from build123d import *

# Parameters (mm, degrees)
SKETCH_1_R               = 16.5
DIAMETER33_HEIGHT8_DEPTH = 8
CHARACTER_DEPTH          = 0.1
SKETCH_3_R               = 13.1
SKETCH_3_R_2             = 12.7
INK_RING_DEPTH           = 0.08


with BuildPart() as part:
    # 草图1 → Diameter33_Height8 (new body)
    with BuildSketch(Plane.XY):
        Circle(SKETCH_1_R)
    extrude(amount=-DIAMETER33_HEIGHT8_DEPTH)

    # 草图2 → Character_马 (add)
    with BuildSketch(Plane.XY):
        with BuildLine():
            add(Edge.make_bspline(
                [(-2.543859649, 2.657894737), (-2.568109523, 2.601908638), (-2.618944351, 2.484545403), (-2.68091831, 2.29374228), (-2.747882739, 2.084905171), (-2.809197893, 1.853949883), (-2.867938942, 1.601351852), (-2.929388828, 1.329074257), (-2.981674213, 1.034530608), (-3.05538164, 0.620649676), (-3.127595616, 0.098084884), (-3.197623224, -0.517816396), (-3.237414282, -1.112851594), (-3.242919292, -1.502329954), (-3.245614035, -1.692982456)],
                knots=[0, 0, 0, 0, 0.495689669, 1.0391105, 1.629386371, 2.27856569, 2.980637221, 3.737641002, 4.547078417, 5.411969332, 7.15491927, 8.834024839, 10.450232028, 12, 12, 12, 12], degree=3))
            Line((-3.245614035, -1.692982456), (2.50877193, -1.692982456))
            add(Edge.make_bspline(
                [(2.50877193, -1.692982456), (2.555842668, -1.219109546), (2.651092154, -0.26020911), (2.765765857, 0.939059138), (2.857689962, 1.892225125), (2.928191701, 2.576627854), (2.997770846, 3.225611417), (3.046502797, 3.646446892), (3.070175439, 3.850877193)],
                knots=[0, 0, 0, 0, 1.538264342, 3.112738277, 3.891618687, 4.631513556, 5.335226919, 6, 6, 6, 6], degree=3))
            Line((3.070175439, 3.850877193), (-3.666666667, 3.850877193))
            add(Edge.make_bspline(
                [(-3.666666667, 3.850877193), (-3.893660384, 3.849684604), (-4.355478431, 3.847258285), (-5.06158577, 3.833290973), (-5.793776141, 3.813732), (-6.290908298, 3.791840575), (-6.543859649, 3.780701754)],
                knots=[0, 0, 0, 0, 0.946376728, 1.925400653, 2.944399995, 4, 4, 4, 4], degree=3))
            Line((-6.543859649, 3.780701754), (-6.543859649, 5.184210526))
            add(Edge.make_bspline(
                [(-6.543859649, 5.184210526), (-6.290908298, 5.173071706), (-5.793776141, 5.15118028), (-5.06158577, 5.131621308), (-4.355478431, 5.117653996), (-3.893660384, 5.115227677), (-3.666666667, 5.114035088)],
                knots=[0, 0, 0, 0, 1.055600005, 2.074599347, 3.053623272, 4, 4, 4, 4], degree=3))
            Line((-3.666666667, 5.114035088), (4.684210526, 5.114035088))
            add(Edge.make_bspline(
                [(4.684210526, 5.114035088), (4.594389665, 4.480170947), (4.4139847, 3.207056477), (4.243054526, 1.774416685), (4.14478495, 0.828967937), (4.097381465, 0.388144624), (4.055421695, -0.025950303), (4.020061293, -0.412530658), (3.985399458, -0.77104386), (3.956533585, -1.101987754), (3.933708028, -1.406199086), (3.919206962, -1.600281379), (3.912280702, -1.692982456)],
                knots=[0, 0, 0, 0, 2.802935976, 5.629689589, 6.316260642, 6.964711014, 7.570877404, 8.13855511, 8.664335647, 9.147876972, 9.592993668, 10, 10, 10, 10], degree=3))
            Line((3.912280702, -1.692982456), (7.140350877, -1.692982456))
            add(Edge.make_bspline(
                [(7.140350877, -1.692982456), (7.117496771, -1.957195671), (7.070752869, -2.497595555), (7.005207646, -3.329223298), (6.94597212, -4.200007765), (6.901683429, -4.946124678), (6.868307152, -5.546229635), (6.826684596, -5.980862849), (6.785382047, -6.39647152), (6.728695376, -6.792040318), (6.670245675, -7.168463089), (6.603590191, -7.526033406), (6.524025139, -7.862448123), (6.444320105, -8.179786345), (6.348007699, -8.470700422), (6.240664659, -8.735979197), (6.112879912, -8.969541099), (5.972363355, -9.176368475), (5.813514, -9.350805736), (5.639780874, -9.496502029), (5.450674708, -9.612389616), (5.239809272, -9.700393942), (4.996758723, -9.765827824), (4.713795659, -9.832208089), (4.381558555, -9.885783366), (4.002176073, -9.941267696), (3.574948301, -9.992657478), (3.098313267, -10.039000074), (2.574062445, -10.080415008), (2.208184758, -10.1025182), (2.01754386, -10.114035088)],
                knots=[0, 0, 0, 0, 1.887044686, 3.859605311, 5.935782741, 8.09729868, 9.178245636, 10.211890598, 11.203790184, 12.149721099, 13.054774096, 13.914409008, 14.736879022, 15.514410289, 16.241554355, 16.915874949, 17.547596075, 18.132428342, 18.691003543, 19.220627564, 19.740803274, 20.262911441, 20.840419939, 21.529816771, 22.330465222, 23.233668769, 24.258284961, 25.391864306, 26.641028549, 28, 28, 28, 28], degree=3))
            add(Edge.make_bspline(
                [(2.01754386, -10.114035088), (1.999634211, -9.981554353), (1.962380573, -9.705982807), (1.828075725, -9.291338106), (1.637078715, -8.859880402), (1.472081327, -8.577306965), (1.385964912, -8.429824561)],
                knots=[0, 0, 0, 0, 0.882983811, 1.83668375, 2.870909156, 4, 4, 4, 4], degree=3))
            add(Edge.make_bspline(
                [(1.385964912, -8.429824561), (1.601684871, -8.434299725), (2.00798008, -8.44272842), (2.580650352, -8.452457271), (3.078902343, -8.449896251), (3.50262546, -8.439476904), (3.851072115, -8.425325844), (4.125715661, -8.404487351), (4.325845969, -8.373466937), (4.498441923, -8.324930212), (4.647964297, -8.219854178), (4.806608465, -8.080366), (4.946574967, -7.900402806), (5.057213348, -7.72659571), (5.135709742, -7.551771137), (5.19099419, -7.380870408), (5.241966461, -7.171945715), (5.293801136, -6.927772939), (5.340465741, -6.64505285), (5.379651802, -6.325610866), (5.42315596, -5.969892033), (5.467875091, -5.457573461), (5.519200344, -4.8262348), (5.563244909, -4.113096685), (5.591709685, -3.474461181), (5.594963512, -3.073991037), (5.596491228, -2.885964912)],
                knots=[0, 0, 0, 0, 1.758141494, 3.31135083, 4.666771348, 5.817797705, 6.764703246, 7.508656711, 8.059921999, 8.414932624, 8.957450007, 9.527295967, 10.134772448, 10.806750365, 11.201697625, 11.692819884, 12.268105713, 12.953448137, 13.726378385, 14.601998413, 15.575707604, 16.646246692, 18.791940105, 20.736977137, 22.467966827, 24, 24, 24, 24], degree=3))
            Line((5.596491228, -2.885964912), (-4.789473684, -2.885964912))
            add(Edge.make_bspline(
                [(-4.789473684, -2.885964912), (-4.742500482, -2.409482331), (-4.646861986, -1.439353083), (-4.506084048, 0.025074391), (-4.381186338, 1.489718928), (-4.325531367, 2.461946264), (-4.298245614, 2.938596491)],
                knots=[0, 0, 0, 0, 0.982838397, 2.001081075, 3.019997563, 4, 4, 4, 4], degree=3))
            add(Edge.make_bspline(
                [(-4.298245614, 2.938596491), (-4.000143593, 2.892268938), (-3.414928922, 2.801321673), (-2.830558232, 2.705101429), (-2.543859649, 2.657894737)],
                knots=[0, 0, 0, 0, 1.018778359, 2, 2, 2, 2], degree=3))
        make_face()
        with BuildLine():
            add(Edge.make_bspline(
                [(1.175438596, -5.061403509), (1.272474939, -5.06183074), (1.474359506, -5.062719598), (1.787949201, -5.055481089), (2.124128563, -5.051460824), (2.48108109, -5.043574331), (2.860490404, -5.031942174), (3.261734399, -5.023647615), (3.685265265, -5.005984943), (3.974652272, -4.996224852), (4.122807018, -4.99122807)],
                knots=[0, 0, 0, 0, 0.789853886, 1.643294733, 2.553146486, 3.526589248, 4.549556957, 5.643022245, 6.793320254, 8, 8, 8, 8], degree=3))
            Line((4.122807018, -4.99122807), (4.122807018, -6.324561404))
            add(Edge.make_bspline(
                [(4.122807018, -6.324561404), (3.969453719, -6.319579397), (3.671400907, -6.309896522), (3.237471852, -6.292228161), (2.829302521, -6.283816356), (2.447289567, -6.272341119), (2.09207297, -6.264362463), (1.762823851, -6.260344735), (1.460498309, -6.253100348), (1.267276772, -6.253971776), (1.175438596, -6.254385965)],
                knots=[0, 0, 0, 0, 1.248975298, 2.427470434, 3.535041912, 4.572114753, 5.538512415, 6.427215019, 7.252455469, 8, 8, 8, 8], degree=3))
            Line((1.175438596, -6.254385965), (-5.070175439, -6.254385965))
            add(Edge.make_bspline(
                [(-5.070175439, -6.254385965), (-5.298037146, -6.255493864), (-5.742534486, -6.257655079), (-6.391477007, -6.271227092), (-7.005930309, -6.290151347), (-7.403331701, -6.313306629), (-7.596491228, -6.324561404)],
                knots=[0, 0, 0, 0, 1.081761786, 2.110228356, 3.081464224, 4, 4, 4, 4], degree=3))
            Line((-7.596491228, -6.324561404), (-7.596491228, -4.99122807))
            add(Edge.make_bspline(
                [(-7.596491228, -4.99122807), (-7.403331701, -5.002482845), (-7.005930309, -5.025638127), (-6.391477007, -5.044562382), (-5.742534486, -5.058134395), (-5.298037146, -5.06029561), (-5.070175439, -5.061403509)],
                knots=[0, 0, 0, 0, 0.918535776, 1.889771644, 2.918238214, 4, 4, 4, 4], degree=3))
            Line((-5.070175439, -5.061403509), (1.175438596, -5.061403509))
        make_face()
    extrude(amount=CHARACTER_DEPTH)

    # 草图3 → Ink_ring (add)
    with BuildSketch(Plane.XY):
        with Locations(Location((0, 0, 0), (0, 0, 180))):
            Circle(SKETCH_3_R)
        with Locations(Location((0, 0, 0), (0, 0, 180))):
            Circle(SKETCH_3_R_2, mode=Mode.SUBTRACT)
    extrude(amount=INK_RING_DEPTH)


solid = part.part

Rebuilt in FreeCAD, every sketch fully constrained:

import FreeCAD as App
import Part
import Sketcher

V = App.Vector
Q = App.Units.Quantity

doc = App.newDocument("Part")
params = doc.addObject("Spreadsheet::Sheet", "Params")
for row, (alias, value) in enumerate([
    ("sketch1_diameter", "33 mm"),
    ("pad1_length", "8 mm"),
    ("pad2_length", "0.1 mm"),
    ("sketch3_diameter", "26.2 mm"),
    ("sketch3_diameter2", "25.4 mm"),
    ("pad3_length", "0.08 mm"),
], start=1):
    params.set(f"A{row}", alias)
    params.set(f"B{row}", "=" + value)
    params.setAlias(f"B{row}", alias)

body = doc.addObject("PartDesign::Body", "Body")

# Sketch on XY plane
sketch1 = doc.addObject("Sketcher::SketchObject", "Sketch")
body.addObject(sketch1)
sketch1.AttachmentSupport = (doc.XY_Plane, [""])
sketch1.MapMode = "FlatFace"
sketch1.addGeometry(Part.Circle(V(0, 0, 0), V(0, 0, 1), 16), False)
sketch1.addConstraint(Sketcher.Constraint("Coincident", 0, 3, -1, 1))
sketch1.addConstraint(Sketcher.Constraint("Diameter", 0, Q("33 mm")))
sketch1.setExpression("Constraints[1]", "Params.sketch1_diameter")
pad1 = doc.addObject("PartDesign::Pad", "Pad")
body.addObject(pad1)
pad1.Profile = sketch1
pad1.setExpression("Length", "Params.pad1_length")
pad1.Reversed = True

# Sketch on XY plane
sketch2 = doc.addObject("Sketcher::SketchObject", "Sketch001")
body.addObject(sketch2)
sketch2.AttachmentSupport = (doc.XY_Plane, [""])
sketch2.MapMode = "FlatFace"
sketch2.addGeometry(Part.BSplineCurve([V(-2.54386, 2.657895, 0), V(-2.56811, 2.601909, 0), V(-2.618944, 2.484545, 0), V(-2.680918, 2.293742, 0), V(-2.747883, 2.084905, 0), V(-2.809198, 1.85395, 0), V(-2.867939, 1.601352, 0), V(-2.929389, 1.329074, 0), V(-2.981674, 1.034531, 0), V(-3.055382, 0.62065, 0), V(-3.127596, 0.098085, 0), V(-3.197623, -0.517816, 0), V(-3.237414, -1.112852, 0), V(-3.242919, -1.50233, 0), V(-3.245614, -1.692982, 0)], [4, 1, 1, 1, 1, 1, 1, 1, 1, 1, 1, 1, 4], [0, 0.495689669, 1.0391105, 1.629386371, 2.27856569, 2.980637221, 3.737641002, 4.547078417, 5.411969332, 7.15491927, 8.834024839, 10.450232028, 12], False, 3, [1, 1, 1, 1, 1, 1, 1, 1, 1, 1, 1, 1, 1, 1, 1], False), False)
sketch2.addGeometry(Part.BSplineCurve([V(-4.298246, 2.938596, 0), V(-4.000144, 2.892269, 0), V(-3.414929, 2.801322, 0), V(-2.830558, 2.705101, 0), V(-2.54386, 2.657895, 0)], [4, 1, 4], [0, 1.018778359, 2], False, 3, [1, 1, 1, 1, 1], False), False)
sketch2.addGeometry(Part.BSplineCurve([V(-4.789474, -2.885965, 0), V(-4.7425, -2.409482, 0), V(-4.646862, -1.439353, 0), V(-4.506084, 0.025074, 0), V(-4.381186, 1.489719, 0), V(-4.325531, 2.461946, 0), V(-4.298246, 2.938596, 0)], [4, 1, 1, 1, 4], [0, 0.982838397, 2.001081075, 3.019997563, 4], False, 3, [1, 1, 1, 1, 1, 1, 1], False), False)
sketch2.addGeometry(Part.LineSegment(V(-4.789474, -2.885965, 0), V(5.596491, -2.885965, 0)), False)
sketch2.addGeometry(Part.BSplineCurve([V(1.385965, -8.429825, 0), V(1.601685, -8.4343, 0), V(2.00798, -8.442728, 0), V(2.58065, -8.452457, 0), V(3.078902, -8.449896, 0), V(3.502625, -8.439477, 0), V(3.851072, -8.425326, 0), V(4.125716, -8.404487, 0), V(4.325846, -8.373467, 0), V(4.498442, -8.32493, 0), V(4.647964, -8.219854, 0), V(4.806608, -8.080366, 0), V(4.946575, -7.900403, 0), V(5.057213, -7.726596, 0), V(5.13571, -7.551771, 0), V(5.190994, -7.38087, 0), V(5.241966, -7.171946, 0), V(5.293801, -6.927773, 0), V(5.340466, -6.645053, 0), V(5.379652, -6.325611, 0), V(5.423156, -5.969892, 0), V(5.467875, -5.457573, 0), V(5.5192, -4.826235, 0), V(5.563245, -4.113097, 0), V(5.59171, -3.474461, 0), V(5.594964, -3.073991, 0), V(5.596491, -2.885965, 0)], [4, 1, 1, 1, 1, 1, 1, 1, 1, 1, 1, 1, 1, 1, 1, 1, 1, 1, 1, 1, 1, 1, 1, 1, 4], [0, 1.758141494, 3.31135083, 4.666771348, 5.817797705, 6.764703246, 7.508656711, 8.059921999, 8.414932624, 8.957450007, 9.527295967, 10.134772448, 10.806750365, 11.201697625, 11.692819884, 12.268105713, 12.953448137, 13.726378385, 14.601998413, 15.575707604, 16.646246692, 18.791940105, 20.736977137, 22.467966827, 24], False, 3, [1, 1, 1, 1, 1, 1, 1, 1, 1, 1, 1, 1, 1, 1, 1, 1, 1, 1, 1, 1, 1, 1, 1, 1, 1, 1, 1], False), False)
sketch2.addGeometry(Part.BSplineCurve([V(2.017544, -10.114035, 0), V(1.999634, -9.981554, 0), V(1.962381, -9.705983, 0), V(1.828076, -9.291338, 0), V(1.637079, -8.85988, 0), V(1.472081, -8.577307, 0), V(1.385965, -8.429825, 0)], [4, 1, 1, 1, 4], [0, 0.882983811, 1.83668375, 2.870909156, 4], False, 3, [1, 1, 1, 1, 1, 1, 1], False), False)
sketch2.addGeometry(Part.BSplineCurve([V(7.140351, -1.692982, 0), V(7.117497, -1.957196, 0), V(7.070753, -2.497596, 0), V(7.005208, -3.329223, 0), V(6.945972, -4.200008, 0), V(6.901683, -4.946125, 0), V(6.868307, -5.54623, 0), V(6.826685, -5.980863, 0), V(6.785382, -6.396472, 0), V(6.728695, -6.79204, 0), V(6.670246, -7.168463, 0), V(6.60359, -7.526033, 0), V(6.524025, -7.862448, 0), V(6.44432, -8.179786, 0), V(6.348008, -8.4707, 0), V(6.240665, -8.735979, 0), V(6.11288, -8.969541, 0), V(5.972363, -9.176368, 0), V(5.813514, -9.350806, 0), V(5.639781, -9.496502, 0), V(5.450675, -9.61239, 0), V(5.239809, -9.700394, 0), V(4.996759, -9.765828, 0), V(4.713796, -9.832208, 0), V(4.381559, -9.885783, 0), V(4.002176, -9.941268, 0), V(3.574948, -9.992657, 0), V(3.098313, -10.039, 0), V(2.574062, -10.080415, 0), V(2.208185, -10.102518, 0), V(2.017544, -10.114035, 0)], [4, 1, 1, 1, 1, 1, 1, 1, 1, 1, 1, 1, 1, 1, 1, 1, 1, 1, 1, 1, 1, 1, 1, 1, 1, 1, 1, 1, 4], [0, 1.887044686, 3.859605311, 5.935782741, 8.09729868, 9.178245636, 10.211890598, 11.203790184, 12.149721099, 13.054774096, 13.914409008, 14.736879022, 15.514410289, 16.241554355, 16.915874949, 17.547596075, 18.132428342, 18.691003543, 19.220627564, 19.740803274, 20.262911441, 20.840419939, 21.529816771, 22.330465222, 23.233668769, 24.258284961, 25.391864306, 26.641028549, 28], False, 3, [1, 1, 1, 1, 1, 1, 1, 1, 1, 1, 1, 1, 1, 1, 1, 1, 1, 1, 1, 1, 1, 1, 1, 1, 1, 1, 1, 1, 1, 1, 1], False), False)
sketch2.addGeometry(Part.LineSegment(V(7.140351, -1.692982, 0), V(3.912281, -1.692982, 0)), False)
sketch2.addGeometry(Part.BSplineCurve([V(4.684211, 5.114035, 0), V(4.59439, 4.480171, 0), V(4.413985, 3.207056, 0), V(4.243055, 1.774417, 0), V(4.144785, 0.828968, 0), V(4.097381, 0.388145, 0), V(4.055422, -0.02595, 0), V(4.020061, -0.412531, 0), V(3.985399, -0.771044, 0), V(3.956534, -1.101988, 0), V(3.933708, -1.406199, 0), V(3.919207, -1.600281, 0), V(3.912281, -1.692982, 0)], [4, 1, 1, 1, 1, 1, 1, 1, 1, 1, 4], [0, 2.802935976, 5.629689589, 6.316260642, 6.964711014, 7.570877404, 8.13855511, 8.664335647, 9.147876972, 9.592993668, 10], False, 3, [1, 1, 1, 1, 1, 1, 1, 1, 1, 1, 1, 1, 1], False), False)
sketch2.addGeometry(Part.LineSegment(V(4.684211, 5.114035, 0), V(-3.666667, 5.114035, 0)), False)
sketch2.addGeometry(Part.BSplineCurve([V(-6.54386, 5.184211, 0), V(-6.290908, 5.173072, 0), V(-5.793776, 5.15118, 0), V(-5.061586, 5.131621, 0), V(-4.355478, 5.117654, 0), V(-3.89366, 5.115228, 0), V(-3.666667, 5.114035, 0)], [4, 1, 1, 1, 4], [0, 1.055600005, 2.074599347, 3.053623272, 4], False, 3, [1, 1, 1, 1, 1, 1, 1], False), False)
sketch2.addGeometry(Part.LineSegment(V(-6.54386, 5.184211, 0), V(-6.54386, 3.780702, 0)), False)
sketch2.addGeometry(Part.BSplineCurve([V(-3.666667, 3.850877, 0), V(-3.89366, 3.849685, 0), V(-4.355478, 3.847258, 0), V(-5.061586, 3.833291, 0), V(-5.793776, 3.813732, 0), V(-6.290908, 3.791841, 0), V(-6.54386, 3.780702, 0)], [4, 1, 1, 1, 4], [0, 0.946376728, 1.925400653, 2.944399995, 4], False, 3, [1, 1, 1, 1, 1, 1, 1], False), False)
sketch2.addGeometry(Part.LineSegment(V(-3.666667, 3.850877, 0), V(3.070175, 3.850877, 0)), False)
sketch2.addGeometry(Part.BSplineCurve([V(2.508772, -1.692982, 0), V(2.555843, -1.21911, 0), V(2.651092, -0.260209, 0), V(2.765766, 0.939059, 0), V(2.85769, 1.892225, 0), V(2.928192, 2.576628, 0), V(2.997771, 3.225611, 0), V(3.046503, 3.646447, 0), V(3.070175, 3.850877, 0)], [4, 1, 1, 1, 1, 1, 4], [0, 1.538264342, 3.112738277, 3.891618687, 4.631513556, 5.335226919, 6], False, 3, [1, 1, 1, 1, 1, 1, 1, 1, 1], False), False)
sketch2.addGeometry(Part.LineSegment(V(2.508772, -1.692982, 0), V(-3.245614, -1.692982, 0)), False)
sketch2.addGeometry(Part.BSplineCurve([V(1.175439, -5.061404, 0), V(1.272475, -5.061831, 0), V(1.47436, -5.06272, 0), V(1.787949, -5.055481, 0), V(2.124129, -5.051461, 0), V(2.481081, -5.043574, 0), V(2.86049, -5.031942, 0), V(3.261734, -5.023648, 0), V(3.685265, -5.005985, 0), V(3.974652, -4.996225, 0), V(4.122807, -4.991228, 0)], [4, 1, 1, 1, 1, 1, 1, 1, 4], [0, 0.789853886, 1.643294733, 2.553146486, 3.526589248, 4.549556957, 5.643022245, 6.793320254, 8], False, 3, [1, 1, 1, 1, 1, 1, 1, 1, 1, 1, 1], False), False)
sketch2.addGeometry(Part.LineSegment(V(1.175439, -5.061404, 0), V(-5.070175, -5.061404, 0)), False)
sketch2.addGeometry(Part.BSplineCurve([V(-7.596491, -4.991228, 0), V(-7.403332, -5.002483, 0), V(-7.00593, -5.025638, 0), V(-6.391477, -5.044562, 0), V(-5.742534, -5.058134, 0), V(-5.298037, -5.060296, 0), V(-5.070175, -5.061404, 0)], [4, 1, 1, 1, 4], [0, 0.918535776, 1.889771644, 2.918238214, 4], False, 3, [1, 1, 1, 1, 1, 1, 1], False), False)
sketch2.addGeometry(Part.LineSegment(V(-7.596491, -4.991228, 0), V(-7.596491, -6.324561, 0)), False)
sketch2.addGeometry(Part.BSplineCurve([V(-5.070175, -6.254386, 0), V(-5.298037, -6.255494, 0), V(-5.742534, -6.257655, 0), V(-6.391477, -6.271227, 0), V(-7.00593, -6.290151, 0), V(-7.403332, -6.313307, 0), V(-7.596491, -6.324561, 0)], [4, 1, 1, 1, 4], [0, 1.081761786, 2.110228356, 3.081464224, 4], False, 3, [1, 1, 1, 1, 1, 1, 1], False), False)
sketch2.addGeometry(Part.LineSegment(V(-5.070175, -6.254386, 0), V(1.175439, -6.254386, 0)), False)
sketch2.addGeometry(Part.BSplineCurve([V(4.122807, -6.324561, 0), V(3.969454, -6.319579, 0), V(3.671401, -6.309897, 0), V(3.237472, -6.292228, 0), V(2.829303, -6.283816, 0), V(2.44729, -6.272341, 0), V(2.092073, -6.264362, 0), V(1.762824, -6.260345, 0), V(1.460498, -6.2531, 0), V(1.267277, -6.253972, 0), V(1.175439, -6.254386, 0)], [4, 1, 1, 1, 1, 1, 1, 1, 4], [0, 1.248975298, 2.427470434, 3.535041912, 4.572114753, 5.538512415, 6.427215019, 7.252455469, 8], False, 3, [1, 1, 1, 1, 1, 1, 1, 1, 1, 1, 1], False), False)
sketch2.addGeometry(Part.LineSegment(V(4.122807, -6.324561, 0), V(4.122807, -4.991228, 0)), False)
sketch2.addConstraint(Sketcher.Constraint("Block", 0))
sketch2.addConstraint(Sketcher.Constraint("Block", 1))
sketch2.addConstraint(Sketcher.Constraint("Block", 2))
sketch2.addConstraint(Sketcher.Constraint("Block", 4))
sketch2.addConstraint(Sketcher.Constraint("Block", 5))
sketch2.addConstraint(Sketcher.Constraint("Block", 6))
sketch2.addConstraint(Sketcher.Constraint("Block", 8))
sketch2.addConstraint(Sketcher.Constraint("Block", 10))
sketch2.addConstraint(Sketcher.Constraint("Block", 12))
sketch2.addConstraint(Sketcher.Constraint("Block", 14))
sketch2.addConstraint(Sketcher.Constraint("Block", 16))
sketch2.addConstraint(Sketcher.Constraint("Block", 18))
sketch2.addConstraint(Sketcher.Constraint("Block", 20))
sketch2.addConstraint(Sketcher.Constraint("Block", 22))
sketch2.addConstraint(Sketcher.Constraint("Coincident", 2, 1, 3, 1))
sketch2.addConstraint(Sketcher.Constraint("Coincident", 3, 2, 4, 2))
sketch2.addConstraint(Sketcher.Constraint("Coincident", 6, 1, 7, 1))
sketch2.addConstraint(Sketcher.Constraint("Coincident", 7, 2, 8, 2))
sketch2.addConstraint(Sketcher.Constraint("Coincident", 8, 1, 9, 1))
sketch2.addConstraint(Sketcher.Constraint("Coincident", 9, 2, 10, 2))
sketch2.addConstraint(Sketcher.Constraint("Coincident", 10, 1, 11, 1))
sketch2.addConstraint(Sketcher.Constraint("Coincident", 11, 2, 12, 2))
sketch2.addConstraint(Sketcher.Constraint("Coincident", 12, 1, 13, 1))
sketch2.addConstraint(Sketcher.Constraint("Coincident", 13, 2, 14, 2))
sketch2.addConstraint(Sketcher.Constraint("Coincident", 14, 1, 15, 1))
sketch2.addConstraint(Sketcher.Constraint("Coincident", 15, 2, 0, 2))
sketch2.addConstraint(Sketcher.Constraint("Coincident", 16, 1, 17, 1))
sketch2.addConstraint(Sketcher.Constraint("Coincident", 17, 2, 18, 2))
sketch2.addConstraint(Sketcher.Constraint("Coincident", 18, 1, 19, 1))
sketch2.addConstraint(Sketcher.Constraint("Coincident", 19, 2, 20, 2))
sketch2.addConstraint(Sketcher.Constraint("Coincident", 20, 1, 21, 1))
sketch2.addConstraint(Sketcher.Constraint("Coincident", 21, 2, 22, 2))
sketch2.addConstraint(Sketcher.Constraint("Coincident", 22, 1, 23, 1))
sketch2.addConstraint(Sketcher.Constraint("Coincident", 23, 2, 16, 2))
pad2 = doc.addObject("PartDesign::Pad", "Pad001")
body.addObject(pad2)
pad2.Profile = sketch2
pad2.setExpression("Length", "Params.pad2_length")

# Sketch on XY plane
sketch3 = doc.addObject("Sketcher::SketchObject", "Sketch002")
body.addObject(sketch3)
sketch3.AttachmentSupport = (doc.XY_Plane, [""])
sketch3.MapMode = "FlatFace"
sketch3.addGeometry(Part.Circle(V(0, 0, 0), V(0, 0, 1), 13), False)
sketch3.addGeometry(Part.Circle(V(0, 0, 0), V(0, 0, 1), 13), False)
sketch3.addConstraint(Sketcher.Constraint("Coincident", 0, 3, -1, 1))
sketch3.addConstraint(Sketcher.Constraint("Coincident", 1, 3, -1, 1))
sketch3.addConstraint(Sketcher.Constraint("Diameter", 0, Q("26.2 mm")))
sketch3.addConstraint(Sketcher.Constraint("Diameter", 1, Q("25.4 mm")))
sketch3.setExpression("Constraints[2]", "Params.sketch3_diameter")
sketch3.setExpression("Constraints[3]", "Params.sketch3_diameter2")
pad3 = doc.addObject("PartDesign::Pad", "Pad002")
body.addObject(pad3)
pad3.Profile = sketch3
pad3.setExpression("Length", "Params.pad3_length")

doc.recompute()
